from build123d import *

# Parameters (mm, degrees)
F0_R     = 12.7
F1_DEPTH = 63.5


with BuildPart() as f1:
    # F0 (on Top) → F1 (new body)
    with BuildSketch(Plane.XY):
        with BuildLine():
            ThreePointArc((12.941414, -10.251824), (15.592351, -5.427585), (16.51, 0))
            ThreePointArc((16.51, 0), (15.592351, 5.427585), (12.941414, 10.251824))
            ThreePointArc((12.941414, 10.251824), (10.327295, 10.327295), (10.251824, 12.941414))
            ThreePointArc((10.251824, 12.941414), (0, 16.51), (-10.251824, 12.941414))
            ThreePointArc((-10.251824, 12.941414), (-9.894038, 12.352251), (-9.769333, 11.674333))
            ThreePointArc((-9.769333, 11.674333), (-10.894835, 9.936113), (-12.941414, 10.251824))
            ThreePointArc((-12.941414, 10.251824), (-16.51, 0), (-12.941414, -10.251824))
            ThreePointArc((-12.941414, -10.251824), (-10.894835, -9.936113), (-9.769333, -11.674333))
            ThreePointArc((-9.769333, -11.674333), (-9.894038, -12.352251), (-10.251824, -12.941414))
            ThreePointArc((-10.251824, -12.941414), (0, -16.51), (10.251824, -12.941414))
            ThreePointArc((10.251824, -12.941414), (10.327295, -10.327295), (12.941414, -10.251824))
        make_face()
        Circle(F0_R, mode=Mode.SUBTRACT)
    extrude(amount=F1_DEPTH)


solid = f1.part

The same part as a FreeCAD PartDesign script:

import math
import FreeCAD as App
import Part
import Sketcher

V = App.Vector
Q = App.Units.Quantity

doc = App.newDocument("Part")
body = doc.addObject("PartDesign::Body", "Body")

# Sketch on XY plane
sketch1 = body.newObject("Sketcher::SketchObject", "Sketch")
sketch1.AttachmentSupport = (doc.getObject("XY_Plane"), [""])
sketch1.MapMode = "FlatFace"
sketch1.addGeometry(Part.ArcOfCircle(Part.Circle(V(-0.000004, 0.000002, 0), V(0, 0, 1), 16.510004), math.radians(-38.385271), math.radians(-0.000006)), False)
sketch1.addGeometry(Part.ArcOfCircle(Part.Circle(V(-0.000004, -0.000002, 0), V(0, 0, 1), 16.510004), math.radians(0.000006), math.radians(38.385271)), False)
sketch1.addGeometry(Part.ArcOfCircle(Part.Circle(V(11.674334, 11.674334, 0), V(0, 0, 1), 1.905), math.radians(138.3074), math.radians(311.6926)), False)
sketch1.addGeometry(Part.ArcOfCircle(Part.Circle(V(0, 0.000001, 0), V(0, 0, 1), 16.509999), math.radians(51.614723), math.radians(128.385277)), False)
sketch1.addGeometry(Part.ArcOfCircle(Part.Circle(V(-11.674342, 11.67433, 0), V(0, 0, 1), 1.905009), math.radians(0.000094), math.radians(41.692511)), False)
sketch1.addGeometry(Part.ArcOfCircle(Part.Circle(V(-11.674333, 11.674333, 0), V(0, 0, 1), 1.905), math.radians(-131.69263), math.radians(0.000006)), False)
sketch1.addGeometry(Part.ArcOfCircle(Part.Circle(V(-0.000001, 0, 0), V(0, 0, 1), 16.509999), math.radians(141.614723), math.radians(218.385277)), False)
sketch1.addGeometry(Part.ArcOfCircle(Part.Circle(V(-11.674333, -11.674333, 0), V(0, 0, 1), 1.905), math.radians(-0.000006), math.radians(131.69263)), False)
sketch1.addGeometry(Part.ArcOfCircle(Part.Circle(V(-11.674342, -11.67433, 0), V(0, 0, 1), 1.905009), math.radians(-41.692511), math.radians(-0.000094)), False)
sketch1.addGeometry(Part.ArcOfCircle(Part.Circle(V(0, -0.000001, 0), V(0, 0, 1), 16.509999), math.radians(-128.385277), math.radians(-51.614723)), False)
sketch1.addGeometry(Part.ArcOfCircle(Part.Circle(V(11.674334, -11.674334, 0), V(0, 0, 1), 1.905), math.radians(48.3074), math.radians(221.6926)), False)
sketch1.addGeometry(Part.Circle(V(0, 0, 0), V(0, 0, 1), 12.7), False)
sketch1.addConstraint(Sketcher.Constraint("Tangent", 0, 2, 1, 1))
sketch1.addConstraint(Sketcher.Constraint("Coincident", 1, 2, 2, 2))
sketch1.addConstraint(Sketcher.Constraint("Coincident", 2, 1, 3, 1))
sketch1.addConstraint(Sketcher.Constraint("Coincident", 3, 2, 4, 2))
sketch1.addConstraint(Sketcher.Constraint("Tangent", 4, 1, 5, 2))
sketch1.addConstraint(Sketcher.Constraint("Coincident", 5, 1, 6, 1))
sketch1.addConstraint(Sketcher.Constraint("Coincident", 6, 2, 7, 2))
sketch1.addConstraint(Sketcher.Constraint("Tangent", 7, 1, 8, 2))
sketch1.addConstraint(Sketcher.Constraint("Coincident", 8, 1, 9, 1))
sketch1.addConstraint(Sketcher.Constraint("Coincident", 9, 2, 10, 2))
sketch1.addConstraint(Sketcher.Constraint("Coincident", 10, 1, 0, 1))
sketch1.addConstraint(Sketcher.Constraint("Coincident", 0, 3, -1, 1))
sketch1.addConstraint(Sketcher.Constraint("Coincident", 3, 3, -1, 1))
sketch1.addConstraint(Sketcher.Constraint("Coincident", 6, 3, -1, 1))
sketch1.addConstraint(Sketcher.Constraint("Coincident", 9, 3, -1, 1))
sketch1.addConstraint(Sketcher.Constraint("Coincident", 11, 3, -1, 1))
sketch1.addConstraint(Sketcher.Constraint("Equal", 0, 1))
sketch1.addConstraint(Sketcher.Constraint("Equal", 2, 5))
sketch1.addConstraint(Sketcher.Constraint("Equal", 3, 6))
sketch1.addConstraint(Sketcher.Constraint("Equal", 5, 7))
sketch1.addConstraint(Sketcher.Constraint("Equal", 4, 8))
sketch1.addConstraint(Sketcher.Constraint("Equal", 6, 9))
sketch1.addConstraint(Sketcher.Constraint("Equal", 7, 10))
sketch1.addConstraint(Sketcher.Constraint("Symmetric", 2, 3, 7, 3, -1, 1))
sketch1.addConstraint(Sketcher.Constraint("Symmetric", 4, 3, 10, 3, -1, 1))
sketch1.addConstraint(Sketcher.Constraint("Symmetric", 5, 1, 10, 1, -1, 1))
sketch1.addConstraint(Sketcher.Constraint("Symmetric", 2, 3, 4, 3, -2))
sketch1.addConstraint(Sketcher.Constraint("PointOnObject", 0, 2, -1))
sketch1.addConstraint(Sketcher.Constraint("Horizontal", 5, 3, 4, 1))
sketch1.addConstraint(Sketcher.Constraint("Horizontal", 10, 3, 7, 1))
sketch1.addConstraint(Sketcher.Constraint("Diameter", 11, Q("1 in")))
sketch1.addConstraint(Sketcher.Constraint("Radius", 0, Q("0.6500001 in")))
sketch1.addConstraint(Sketcher.Constraint("Radius", 2, Q("0.075 in")))
sketch1.addConstraint(Sketcher.Constraint("DistanceY", -1, 1, 4, 3, Q("11.67433 mm")))
sketch1.addConstraint(Sketcher.Constraint("DistanceX", 4, 3, 0, 3, Q("11.674339 mm")))
pad1 = body.newObject("PartDesign::Pad", "Pad")
pad1.Profile = sketch1
pad1.Length = Q("2.5 in")

doc.recompute()
